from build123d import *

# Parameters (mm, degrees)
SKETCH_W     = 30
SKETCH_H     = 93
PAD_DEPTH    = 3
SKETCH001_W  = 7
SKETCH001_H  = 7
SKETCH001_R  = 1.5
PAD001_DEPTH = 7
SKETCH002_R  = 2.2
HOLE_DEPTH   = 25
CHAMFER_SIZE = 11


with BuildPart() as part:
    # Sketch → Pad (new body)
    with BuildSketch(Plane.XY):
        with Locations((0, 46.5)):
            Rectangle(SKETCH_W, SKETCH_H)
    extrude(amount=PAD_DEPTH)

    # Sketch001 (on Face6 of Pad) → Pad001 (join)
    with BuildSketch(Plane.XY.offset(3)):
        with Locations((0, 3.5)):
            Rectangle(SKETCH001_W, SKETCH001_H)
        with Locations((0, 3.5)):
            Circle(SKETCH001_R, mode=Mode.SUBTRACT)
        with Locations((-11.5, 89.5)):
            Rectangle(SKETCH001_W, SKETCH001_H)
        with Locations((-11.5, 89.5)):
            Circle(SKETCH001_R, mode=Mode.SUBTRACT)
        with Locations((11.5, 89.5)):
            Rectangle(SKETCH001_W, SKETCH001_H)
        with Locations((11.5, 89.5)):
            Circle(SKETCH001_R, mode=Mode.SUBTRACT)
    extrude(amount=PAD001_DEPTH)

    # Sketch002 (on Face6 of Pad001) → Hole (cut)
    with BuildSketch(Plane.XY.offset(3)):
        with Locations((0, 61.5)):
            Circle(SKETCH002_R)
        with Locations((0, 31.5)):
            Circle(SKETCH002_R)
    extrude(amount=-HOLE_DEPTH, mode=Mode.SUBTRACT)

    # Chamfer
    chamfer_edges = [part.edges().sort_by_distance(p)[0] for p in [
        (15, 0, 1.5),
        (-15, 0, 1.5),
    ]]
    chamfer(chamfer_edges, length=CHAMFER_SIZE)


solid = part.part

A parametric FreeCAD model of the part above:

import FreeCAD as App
import Part
import Sketcher
Q = App.Units.Quantity


def edges_at(feature, points):
    """Names of the edges that pass closest to the given points."""
    edges = feature.Shape.Edges
    near = lambda p: min(range(len(edges)), key=lambda i: edges[i].distToShape(Part.Vertex(*p))[0])
    return sorted({f"Edge{near(p) + 1}" for p in points})


def add_polygon(sketch, points):
    """Adds a closed chain of lines whose ends are joined by coincident constraints."""
    first, n = sketch.GeometryCount, len(points)
    for a, b in zip(points, points[1:] + points[:1]):
        sketch.addGeometry(Part.LineSegment(App.Vector(*a, 0), App.Vector(*b, 0)), False)
    for i in range(n):
        sketch.addConstraint(Sketcher.Constraint("Coincident", first + i, 2, first + (i + 1) % n, 1))

doc = App.newDocument("Part")
body = doc.addObject("PartDesign::Body", "Body")

sketch1 = doc.addObject("Sketcher::SketchObject", "Sketch")
body.addObject(sketch1)
sketch1.AttachmentSupport = (doc.XY_Plane, [""])
sketch1.MapMode = "FlatFace"
add_polygon(sketch1, [(-15, 93), (-15, 0), (15, 0), (15, 93)])
sketch1.addConstraint([
    Sketcher.Constraint("Vertical", 0),
    Sketcher.Constraint("Horizontal", 1),
    Sketcher.Constraint("Vertical", 2),
    Sketcher.Constraint("Horizontal", 3),
    Sketcher.Constraint("Symmetric", 0, 2, 1, 2, -1, 1),
    Sketcher.Constraint("DistanceX", 1, 1, 1, 2, Q("30 mm")),
    Sketcher.Constraint("DistanceY", 0, 2, 0, 1, Q("93 mm")),
])
pad1 = doc.addObject("PartDesign::Pad", "Pad")
body.addObject(pad1)
pad1.Profile = sketch1
pad1.Length = 3

sketch2 = doc.addObject("Sketcher::SketchObject", "Sketch001")
body.addObject(sketch2)
sketch2.AttachmentSupport = (doc.XY_Plane, [""])
sketch2.MapMode = "FlatFace"
sketch2.AttachmentOffset = App.Placement(App.Vector(0, 0, 3), App.Rotation())
add_polygon(sketch2, [(-3.5, 7), (-3.5, 0), (3.5, 0), (3.5, 7)])
sketch2.addGeometry(Part.Circle(App.Vector(0, 3.5, 0), App.Vector(0, 0, 1), 1.5), False)
add_polygon(sketch2, [(-15, 93), (-15, 86), (-8, 86), (-8, 93)])
sketch2.addGeometry(Part.Circle(App.Vector(-11.5, 89.5, 0), App.Vector(0, 0, 1), 1.5), False)
add_polygon(sketch2, [(8, 93), (8, 86), (15, 86), (15, 93)])
sketch2.addGeometry(Part.Circle(App.Vector(11.5, 89.5, 0), App.Vector(0, 0, 1), 1.5), False)
sketch2.addConstraint([
    Sketcher.Constraint("Vertical", 0),
    Sketcher.Constraint("Horizontal", 1),
    Sketcher.Constraint("Vertical", 2),
    Sketcher.Constraint("Horizontal", 3),
    Sketcher.Constraint("Vertical", 5),
    Sketcher.Constraint("Horizontal", 6),
    Sketcher.Constraint("Vertical", 7),
    Sketcher.Constraint("Horizontal", 8),
    Sketcher.Constraint("Vertical", 10),
    Sketcher.Constraint("Horizontal", 11),
    Sketcher.Constraint("Vertical", 12),
    Sketcher.Constraint("Horizontal", 13),
    Sketcher.Constraint("Equal", 4, 9),
    Sketcher.Constraint("Equal", 9, 14),
    Sketcher.Constraint("Symmetric", 0, 2, 1, 2, -1, 1),
    Sketcher.Constraint("Symmetric", 9, 3, 14, 3, -2),
    Sketcher.Constraint("Symmetric", 6, 2, 10, 2, -2),
    Sketcher.Constraint("Symmetric", 8, 2, 12, 2, -2),
    Sketcher.Constraint("PointOnObject", 4, 3, -2),
    Sketcher.Constraint("Equal", 3, 6),
    Sketcher.Constraint("Equal", 13, 0),
    Sketcher.Constraint("Equal", 2, 5),
    Sketcher.Constraint("Diameter", 4, Q("3 mm")),
    Sketcher.Constraint("DistanceX", 1, 1, 1, 2, Q("7 mm")),
    Sketcher.Constraint("DistanceX", 5, 2, -1, 1, Q("15 mm")),
    Sketcher.Constraint("DistanceY", -1, 1, 5, 2, Q("86 mm")),
    Sketcher.Constraint("DistanceY", 4, 3, 9, 3, Q("86 mm")),
    Sketcher.Constraint("DistanceX", 9, 3, 14, 3, Q("23 mm")),
    Sketcher.Constraint("DistanceY", -1, 1, 4, 3, Q("3.5 mm")),
])
pad2 = doc.addObject("PartDesign::Pad", "Pad001")
body.addObject(pad2)
pad2.Profile = sketch2
pad2.Length = 7

sketch3 = doc.addObject("Sketcher::SketchObject", "Sketch002")
body.addObject(sketch3)
sketch3.AttachmentSupport = (doc.XY_Plane, [""])
sketch3.MapMode = "FlatFace"
sketch3.AttachmentOffset = App.Placement(App.Vector(0, 0, 3), App.Rotation())
sketch3.addGeometry([
    Part.Circle(App.Vector(0, 61.5, 0), App.Vector(0, 0, 1), 2.2),
    Part.Circle(App.Vector(0, 31.5, 0), App.Vector(0, 0, 1), 2.2),
], False)
sketch3.addConstraint([
    Sketcher.Constraint("Equal", 0, 1),
    Sketcher.Constraint("PointOnObject", 0, 3, -2),
    Sketcher.Constraint("PointOnObject", 1, 3, -2),
    Sketcher.Constraint("Diameter", 0, Q("4.4 mm")),
    Sketcher.Constraint("DistanceY", 1, 3, 0, 3, Q("30 mm")),
    Sketcher.Constraint("DistanceY", -1, 1, 0, 3, Q("61.5 mm")),
])
pocket1 = doc.addObject("PartDesign::Pocket", "Pocket")
body.addObject(pocket1)
pocket1.Profile = sketch3
pocket1.Length = 25
doc.recompute()

chamfer = doc.addObject("PartDesign::Chamfer", "Chamfer")
body.addObject(chamfer)
chamfer.Base = (pocket1, edges_at(pocket1, [(15, 0, 1.5), (-15, 0, 1.5)]))
chamfer.Size = 11

doc.recompute()
